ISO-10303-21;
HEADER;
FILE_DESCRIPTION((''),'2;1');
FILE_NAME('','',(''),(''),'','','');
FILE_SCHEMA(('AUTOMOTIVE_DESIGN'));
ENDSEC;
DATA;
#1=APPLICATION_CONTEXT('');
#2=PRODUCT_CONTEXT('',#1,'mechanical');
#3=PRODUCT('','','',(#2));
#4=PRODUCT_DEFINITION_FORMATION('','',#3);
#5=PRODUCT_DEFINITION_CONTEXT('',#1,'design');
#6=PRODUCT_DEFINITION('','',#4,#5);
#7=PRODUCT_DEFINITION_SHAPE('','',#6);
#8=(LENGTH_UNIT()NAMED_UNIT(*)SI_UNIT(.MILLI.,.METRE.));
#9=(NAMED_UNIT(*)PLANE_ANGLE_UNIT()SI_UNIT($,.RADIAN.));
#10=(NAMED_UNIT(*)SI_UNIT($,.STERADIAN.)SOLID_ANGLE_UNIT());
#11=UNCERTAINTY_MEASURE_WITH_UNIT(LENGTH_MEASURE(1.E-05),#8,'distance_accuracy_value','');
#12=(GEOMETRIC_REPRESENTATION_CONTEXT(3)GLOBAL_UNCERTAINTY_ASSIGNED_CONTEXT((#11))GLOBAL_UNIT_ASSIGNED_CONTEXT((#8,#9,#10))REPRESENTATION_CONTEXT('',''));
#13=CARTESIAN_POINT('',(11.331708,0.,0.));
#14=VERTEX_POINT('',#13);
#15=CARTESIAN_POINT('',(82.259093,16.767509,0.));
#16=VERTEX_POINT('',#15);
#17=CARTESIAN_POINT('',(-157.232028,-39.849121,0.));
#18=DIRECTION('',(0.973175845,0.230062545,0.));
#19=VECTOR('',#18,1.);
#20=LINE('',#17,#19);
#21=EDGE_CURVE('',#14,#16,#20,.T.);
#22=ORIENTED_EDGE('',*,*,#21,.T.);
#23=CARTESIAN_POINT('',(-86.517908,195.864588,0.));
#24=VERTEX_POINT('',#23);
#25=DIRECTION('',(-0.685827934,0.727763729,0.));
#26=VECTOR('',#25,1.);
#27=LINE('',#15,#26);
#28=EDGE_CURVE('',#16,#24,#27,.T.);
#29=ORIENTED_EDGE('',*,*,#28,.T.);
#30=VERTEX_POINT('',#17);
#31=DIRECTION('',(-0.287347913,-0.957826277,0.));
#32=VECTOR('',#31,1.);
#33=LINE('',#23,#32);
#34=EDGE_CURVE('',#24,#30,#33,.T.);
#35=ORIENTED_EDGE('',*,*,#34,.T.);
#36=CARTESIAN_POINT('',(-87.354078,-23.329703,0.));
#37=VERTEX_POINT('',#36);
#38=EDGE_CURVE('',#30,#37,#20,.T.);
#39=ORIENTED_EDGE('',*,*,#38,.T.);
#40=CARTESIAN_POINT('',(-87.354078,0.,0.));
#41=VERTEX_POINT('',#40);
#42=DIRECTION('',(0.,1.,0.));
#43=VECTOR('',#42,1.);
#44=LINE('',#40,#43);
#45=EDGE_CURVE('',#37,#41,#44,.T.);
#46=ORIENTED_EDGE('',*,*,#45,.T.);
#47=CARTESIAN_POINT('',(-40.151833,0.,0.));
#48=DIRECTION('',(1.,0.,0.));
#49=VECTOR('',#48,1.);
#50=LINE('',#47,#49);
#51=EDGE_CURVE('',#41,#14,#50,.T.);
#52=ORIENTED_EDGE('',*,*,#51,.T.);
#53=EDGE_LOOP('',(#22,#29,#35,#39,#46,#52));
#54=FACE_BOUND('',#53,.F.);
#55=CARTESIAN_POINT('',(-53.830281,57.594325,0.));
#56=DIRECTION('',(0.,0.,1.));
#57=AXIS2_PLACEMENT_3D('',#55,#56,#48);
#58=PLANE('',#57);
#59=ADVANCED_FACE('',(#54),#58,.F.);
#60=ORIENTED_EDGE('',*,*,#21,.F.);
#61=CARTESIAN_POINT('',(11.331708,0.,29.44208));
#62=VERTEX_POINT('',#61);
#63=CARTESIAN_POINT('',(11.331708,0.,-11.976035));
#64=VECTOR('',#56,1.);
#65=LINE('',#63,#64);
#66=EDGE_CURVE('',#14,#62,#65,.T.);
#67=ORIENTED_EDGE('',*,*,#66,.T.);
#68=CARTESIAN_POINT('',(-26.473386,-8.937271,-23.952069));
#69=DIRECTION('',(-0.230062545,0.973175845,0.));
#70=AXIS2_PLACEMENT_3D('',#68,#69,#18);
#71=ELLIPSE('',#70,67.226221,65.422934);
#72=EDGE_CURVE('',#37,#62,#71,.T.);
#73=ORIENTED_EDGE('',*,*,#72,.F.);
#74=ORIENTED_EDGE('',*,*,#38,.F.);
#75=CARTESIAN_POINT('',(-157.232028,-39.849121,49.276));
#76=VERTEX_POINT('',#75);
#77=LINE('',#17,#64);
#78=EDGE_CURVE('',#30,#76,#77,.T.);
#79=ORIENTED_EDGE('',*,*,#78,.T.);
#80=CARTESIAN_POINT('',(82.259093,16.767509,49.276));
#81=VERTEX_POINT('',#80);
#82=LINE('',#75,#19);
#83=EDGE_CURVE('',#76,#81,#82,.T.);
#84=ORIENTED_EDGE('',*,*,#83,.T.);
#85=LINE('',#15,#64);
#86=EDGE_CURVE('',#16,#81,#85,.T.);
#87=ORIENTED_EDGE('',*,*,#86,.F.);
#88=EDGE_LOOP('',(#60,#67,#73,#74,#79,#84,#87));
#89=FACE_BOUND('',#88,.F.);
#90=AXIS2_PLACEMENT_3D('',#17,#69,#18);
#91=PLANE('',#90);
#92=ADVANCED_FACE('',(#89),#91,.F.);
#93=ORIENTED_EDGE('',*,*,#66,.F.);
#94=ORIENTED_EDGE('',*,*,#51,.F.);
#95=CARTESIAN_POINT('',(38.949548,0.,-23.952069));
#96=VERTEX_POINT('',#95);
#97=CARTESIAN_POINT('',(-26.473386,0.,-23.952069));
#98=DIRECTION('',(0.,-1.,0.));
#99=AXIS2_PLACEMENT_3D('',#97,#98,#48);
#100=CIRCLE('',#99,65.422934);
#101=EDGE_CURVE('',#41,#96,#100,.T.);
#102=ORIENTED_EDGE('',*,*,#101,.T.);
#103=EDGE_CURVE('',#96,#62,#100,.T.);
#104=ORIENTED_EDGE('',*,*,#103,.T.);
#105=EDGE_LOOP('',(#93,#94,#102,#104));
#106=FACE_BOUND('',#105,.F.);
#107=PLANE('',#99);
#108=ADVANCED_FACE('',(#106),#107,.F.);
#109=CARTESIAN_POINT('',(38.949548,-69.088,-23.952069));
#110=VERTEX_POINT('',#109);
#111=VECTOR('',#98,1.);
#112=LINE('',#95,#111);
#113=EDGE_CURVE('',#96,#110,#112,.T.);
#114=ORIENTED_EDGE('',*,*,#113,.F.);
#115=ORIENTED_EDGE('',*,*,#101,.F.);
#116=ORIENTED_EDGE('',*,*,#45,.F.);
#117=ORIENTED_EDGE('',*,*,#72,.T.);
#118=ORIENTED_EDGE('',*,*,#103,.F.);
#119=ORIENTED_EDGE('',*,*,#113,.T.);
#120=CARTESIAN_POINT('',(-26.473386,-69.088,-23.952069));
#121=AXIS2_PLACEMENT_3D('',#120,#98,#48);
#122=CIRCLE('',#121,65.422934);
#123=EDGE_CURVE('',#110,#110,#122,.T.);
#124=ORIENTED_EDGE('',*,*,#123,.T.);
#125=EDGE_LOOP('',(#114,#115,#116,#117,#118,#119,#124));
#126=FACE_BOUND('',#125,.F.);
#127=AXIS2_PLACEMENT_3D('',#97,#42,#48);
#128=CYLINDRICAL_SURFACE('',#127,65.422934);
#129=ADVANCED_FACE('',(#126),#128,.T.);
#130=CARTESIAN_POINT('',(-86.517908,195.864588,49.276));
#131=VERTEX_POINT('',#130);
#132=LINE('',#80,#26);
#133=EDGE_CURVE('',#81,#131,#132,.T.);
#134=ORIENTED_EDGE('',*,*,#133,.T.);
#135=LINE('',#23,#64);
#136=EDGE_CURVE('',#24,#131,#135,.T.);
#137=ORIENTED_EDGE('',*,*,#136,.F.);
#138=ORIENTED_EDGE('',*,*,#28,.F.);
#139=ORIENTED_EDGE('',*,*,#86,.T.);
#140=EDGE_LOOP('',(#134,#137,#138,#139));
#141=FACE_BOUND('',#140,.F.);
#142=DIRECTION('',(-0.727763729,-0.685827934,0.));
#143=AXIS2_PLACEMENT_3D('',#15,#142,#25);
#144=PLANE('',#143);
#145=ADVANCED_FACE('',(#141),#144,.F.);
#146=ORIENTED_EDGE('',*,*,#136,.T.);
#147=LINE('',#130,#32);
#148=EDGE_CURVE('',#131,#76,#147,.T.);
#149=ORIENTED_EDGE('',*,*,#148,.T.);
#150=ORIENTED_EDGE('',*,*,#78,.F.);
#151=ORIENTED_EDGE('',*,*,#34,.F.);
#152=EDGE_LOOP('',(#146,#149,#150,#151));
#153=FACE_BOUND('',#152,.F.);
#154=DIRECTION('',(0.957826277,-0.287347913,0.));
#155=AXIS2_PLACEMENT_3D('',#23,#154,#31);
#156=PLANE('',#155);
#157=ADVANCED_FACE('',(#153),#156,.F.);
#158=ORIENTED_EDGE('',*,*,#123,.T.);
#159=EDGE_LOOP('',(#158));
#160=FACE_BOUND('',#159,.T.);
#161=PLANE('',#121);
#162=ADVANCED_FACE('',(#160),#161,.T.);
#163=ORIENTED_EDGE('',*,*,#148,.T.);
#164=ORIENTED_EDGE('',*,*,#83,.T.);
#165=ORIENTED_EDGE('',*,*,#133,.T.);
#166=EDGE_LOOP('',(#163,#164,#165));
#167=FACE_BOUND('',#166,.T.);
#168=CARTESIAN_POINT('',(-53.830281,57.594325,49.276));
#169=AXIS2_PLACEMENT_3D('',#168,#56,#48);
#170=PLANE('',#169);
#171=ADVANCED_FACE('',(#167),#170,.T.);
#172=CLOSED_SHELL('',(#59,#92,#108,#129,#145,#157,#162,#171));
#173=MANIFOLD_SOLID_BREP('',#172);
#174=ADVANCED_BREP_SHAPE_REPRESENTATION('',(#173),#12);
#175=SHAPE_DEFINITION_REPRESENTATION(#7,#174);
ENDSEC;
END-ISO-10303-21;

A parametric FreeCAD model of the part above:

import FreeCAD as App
import Part
import Sketcher

V = App.Vector
Q = App.Units.Quantity


def add_polygon(sketch, points):
    """Adds a closed chain of lines whose ends are joined by coincident constraints."""
    first, n = sketch.GeometryCount, len(points)
    for a, b in zip(points, points[1:] + points[:1]):
        sketch.addGeometry(Part.LineSegment(App.Vector(*a, 0), App.Vector(*b, 0)), False)
    for i in range(n):
        sketch.addConstraint(Sketcher.Constraint("Coincident", first + i, 2, first + (i + 1) % n, 1))

doc = App.newDocument("Part")
body = doc.addObject("PartDesign::Body", "Body")

sketch1 = body.newObject("Sketcher::SketchObject", "Sketch")
sketch1.AttachmentSupport = (doc.getObject("XY_Plane"), [""])
sketch1.MapMode = "FlatFace"
add_polygon(sketch1, [(-157, -40), (82, 17), (-87, 196)])
sketch1.addConstraint(Sketcher.Constraint("Equal", 0, 1))
sketch1.addConstraint(Sketcher.Constraint("Equal", 1, 2))
sketch1.addConstraint(Sketcher.Constraint("DistanceX", 1, 2, 0, 2, Q("168.777001 mm")))
sketch1.addConstraint(Sketcher.Constraint("Distance", 0, Q("246.09234 mm")))
sketch1.addConstraint(Sketcher.Constraint("DistanceY", -1, 1, 0, 2, Q("16.767509 mm")))
sketch1.addConstraint(Sketcher.Constraint("DistanceX", 1, 2, -1, 1, Q("86.517908 mm")))
pad1 = body.newObject("PartDesign::Pad", "Pad")
pad1.Profile = sketch1
pad1.Length = Q("1.94 in")

sketch2 = body.newObject("Sketcher::SketchObject", "Sketch001")
sketch2.AttachmentSupport = (doc.getObject("XZ_Plane"), [""])
sketch2.MapMode = "FlatFace"
sketch2.addGeometry(Part.Circle(V(-26, -24, 0), V(0, 0, 1), 65), False)
sketch2.addConstraint(Sketcher.Constraint("Diameter", 0, Q("130.845868 mm")))
sketch2.addConstraint(Sketcher.Constraint("DistanceY", 0, 3, -1, 1, Q("23.952069 mm")))
sketch2.addConstraint(Sketcher.Constraint("DistanceX", 0, 3, -1, 1, Q("26.473386 mm")))
pad2 = body.newObject("PartDesign::Pad", "Pad001")
pad2.Profile = sketch2
pad2.Length = Q("2.72 in")

doc.recompute()
